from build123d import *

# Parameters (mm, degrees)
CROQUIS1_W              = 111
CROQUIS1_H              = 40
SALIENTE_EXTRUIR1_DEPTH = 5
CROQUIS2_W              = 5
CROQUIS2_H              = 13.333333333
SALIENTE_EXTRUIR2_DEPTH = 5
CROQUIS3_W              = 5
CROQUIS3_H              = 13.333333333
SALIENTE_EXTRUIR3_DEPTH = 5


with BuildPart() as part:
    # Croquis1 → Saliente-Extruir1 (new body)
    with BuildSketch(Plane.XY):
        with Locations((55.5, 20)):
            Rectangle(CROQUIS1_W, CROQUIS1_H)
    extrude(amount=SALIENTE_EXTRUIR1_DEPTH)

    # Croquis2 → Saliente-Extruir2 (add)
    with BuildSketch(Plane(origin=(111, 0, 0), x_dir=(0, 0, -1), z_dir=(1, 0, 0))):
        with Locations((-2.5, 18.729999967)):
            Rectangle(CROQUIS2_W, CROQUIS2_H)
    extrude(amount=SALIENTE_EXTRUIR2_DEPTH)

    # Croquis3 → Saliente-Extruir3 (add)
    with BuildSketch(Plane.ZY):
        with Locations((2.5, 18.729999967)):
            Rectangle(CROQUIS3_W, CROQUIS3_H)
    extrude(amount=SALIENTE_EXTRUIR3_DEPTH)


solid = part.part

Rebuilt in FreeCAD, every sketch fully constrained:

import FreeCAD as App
import Part
import Sketcher

V = App.Vector
Q = App.Units.Quantity


def add_polygon(sketch, points):
    """Adds a closed chain of lines whose ends are joined by coincident constraints."""
    first, n = sketch.GeometryCount, len(points)
    for a, b in zip(points, points[1:] + points[:1]):
        sketch.addGeometry(Part.LineSegment(App.Vector(*a, 0), App.Vector(*b, 0)), False)
    for i in range(n):
        sketch.addConstraint(Sketcher.Constraint("Coincident", first + i, 2, first + (i + 1) % n, 1))

doc = App.newDocument("Part")
body = doc.addObject("PartDesign::Body", "Body")

# Sketch on XY plane
sketch1 = body.newObject("Sketcher::SketchObject", "Sketch")
sketch1.AttachmentSupport = (doc.getObject("XY_Plane"), [""])
sketch1.MapMode = "FlatFace"
add_polygon(sketch1, [(0, 40), (0, 0), (111, 0), (111, 40)])  # lines 0-3
sketch1.addConstraint(Sketcher.Constraint("Vertical", 0))
sketch1.addConstraint(Sketcher.Constraint("Horizontal", 1))
sketch1.addConstraint(Sketcher.Constraint("Vertical", 2))
sketch1.addConstraint(Sketcher.Constraint("Horizontal", 3))
sketch1.addConstraint(Sketcher.Constraint("Coincident", 0, 2, -1, 1))
sketch1.addConstraint(Sketcher.Constraint("DistanceX", 1, 1, 1, 2, Q("111 mm")))
sketch1.addConstraint(Sketcher.Constraint("DistanceY", 0, 2, 0, 1, Q("40 mm")))
pad1 = body.newObject("PartDesign::Pad", "Pad")
pad1.Profile = sketch1
pad1.Length = 5

# Sketch on YZ plane
sketch2 = body.newObject("Sketcher::SketchObject", "Sketch001")
sketch2.AttachmentSupport = (doc.getObject("YZ_Plane"), [""])
sketch2.MapMode = "FlatFace"
sketch2.AttachmentOffset = App.Placement(V(0, 0, 111), App.Rotation())
add_polygon(sketch2, [(25.396667, 5), (12.063333, 5), (12.063333, 0), (25.396667, 0)])  # lines 0-3
sketch2.addConstraint(Sketcher.Constraint("Horizontal", 0))
sketch2.addConstraint(Sketcher.Constraint("Vertical", 1))
sketch2.addConstraint(Sketcher.Constraint("Horizontal", 2))
sketch2.addConstraint(Sketcher.Constraint("Vertical", 3))
sketch2.addConstraint(Sketcher.Constraint("PointOnObject", 1, 2, -1))
sketch2.addConstraint(Sketcher.Constraint("DistanceY", 1, 2, 1, 1, Q("5 mm")))
sketch2.addConstraint(Sketcher.Constraint("DistanceX", 0, 2, 0, 1, Q("13.333333 mm")))
sketch2.addConstraint(Sketcher.Constraint("DistanceX", -1, 1, 0, 2, Q("12.063333 mm")))
pad2 = body.newObject("PartDesign::Pad", "Pad001")
pad2.Profile = sketch2
pad2.Length = 5

# Sketch on YZ plane
sketch3 = body.newObject("Sketcher::SketchObject", "Sketch002")
sketch3.AttachmentSupport = (doc.getObject("YZ_Plane"), [""])
sketch3.MapMode = "FlatFace"
add_polygon(sketch3, [(25.396667, 0), (12.063333, 0), (12.063333, 5), (25.396667, 5)])  # lines 0-3
sketch3.addConstraint(Sketcher.Constraint("Horizontal", 0))
sketch3.addConstraint(Sketcher.Constraint("Vertical", 1))
sketch3.addConstraint(Sketcher.Constraint("Horizontal", 2))
sketch3.addConstraint(Sketcher.Constraint("Vertical", 3))
sketch3.addConstraint(Sketcher.Constraint("PointOnObject", 0, 2, -1))
sketch3.addConstraint(Sketcher.Constraint("DistanceY", 1, 1, 1, 2, Q("5 mm")))
sketch3.addConstraint(Sketcher.Constraint("DistanceX", 0, 2, 0, 1, Q("13.333333 mm")))
sketch3.addConstraint(Sketcher.Constraint("DistanceX", -1, 1, 0, 2, Q("12.063333 mm")))
pad3 = body.newObject("PartDesign::Pad", "Pad002")
pad3.Profile = sketch3
pad3.Length = 5
pad3.Reversed = True

doc.recompute()
